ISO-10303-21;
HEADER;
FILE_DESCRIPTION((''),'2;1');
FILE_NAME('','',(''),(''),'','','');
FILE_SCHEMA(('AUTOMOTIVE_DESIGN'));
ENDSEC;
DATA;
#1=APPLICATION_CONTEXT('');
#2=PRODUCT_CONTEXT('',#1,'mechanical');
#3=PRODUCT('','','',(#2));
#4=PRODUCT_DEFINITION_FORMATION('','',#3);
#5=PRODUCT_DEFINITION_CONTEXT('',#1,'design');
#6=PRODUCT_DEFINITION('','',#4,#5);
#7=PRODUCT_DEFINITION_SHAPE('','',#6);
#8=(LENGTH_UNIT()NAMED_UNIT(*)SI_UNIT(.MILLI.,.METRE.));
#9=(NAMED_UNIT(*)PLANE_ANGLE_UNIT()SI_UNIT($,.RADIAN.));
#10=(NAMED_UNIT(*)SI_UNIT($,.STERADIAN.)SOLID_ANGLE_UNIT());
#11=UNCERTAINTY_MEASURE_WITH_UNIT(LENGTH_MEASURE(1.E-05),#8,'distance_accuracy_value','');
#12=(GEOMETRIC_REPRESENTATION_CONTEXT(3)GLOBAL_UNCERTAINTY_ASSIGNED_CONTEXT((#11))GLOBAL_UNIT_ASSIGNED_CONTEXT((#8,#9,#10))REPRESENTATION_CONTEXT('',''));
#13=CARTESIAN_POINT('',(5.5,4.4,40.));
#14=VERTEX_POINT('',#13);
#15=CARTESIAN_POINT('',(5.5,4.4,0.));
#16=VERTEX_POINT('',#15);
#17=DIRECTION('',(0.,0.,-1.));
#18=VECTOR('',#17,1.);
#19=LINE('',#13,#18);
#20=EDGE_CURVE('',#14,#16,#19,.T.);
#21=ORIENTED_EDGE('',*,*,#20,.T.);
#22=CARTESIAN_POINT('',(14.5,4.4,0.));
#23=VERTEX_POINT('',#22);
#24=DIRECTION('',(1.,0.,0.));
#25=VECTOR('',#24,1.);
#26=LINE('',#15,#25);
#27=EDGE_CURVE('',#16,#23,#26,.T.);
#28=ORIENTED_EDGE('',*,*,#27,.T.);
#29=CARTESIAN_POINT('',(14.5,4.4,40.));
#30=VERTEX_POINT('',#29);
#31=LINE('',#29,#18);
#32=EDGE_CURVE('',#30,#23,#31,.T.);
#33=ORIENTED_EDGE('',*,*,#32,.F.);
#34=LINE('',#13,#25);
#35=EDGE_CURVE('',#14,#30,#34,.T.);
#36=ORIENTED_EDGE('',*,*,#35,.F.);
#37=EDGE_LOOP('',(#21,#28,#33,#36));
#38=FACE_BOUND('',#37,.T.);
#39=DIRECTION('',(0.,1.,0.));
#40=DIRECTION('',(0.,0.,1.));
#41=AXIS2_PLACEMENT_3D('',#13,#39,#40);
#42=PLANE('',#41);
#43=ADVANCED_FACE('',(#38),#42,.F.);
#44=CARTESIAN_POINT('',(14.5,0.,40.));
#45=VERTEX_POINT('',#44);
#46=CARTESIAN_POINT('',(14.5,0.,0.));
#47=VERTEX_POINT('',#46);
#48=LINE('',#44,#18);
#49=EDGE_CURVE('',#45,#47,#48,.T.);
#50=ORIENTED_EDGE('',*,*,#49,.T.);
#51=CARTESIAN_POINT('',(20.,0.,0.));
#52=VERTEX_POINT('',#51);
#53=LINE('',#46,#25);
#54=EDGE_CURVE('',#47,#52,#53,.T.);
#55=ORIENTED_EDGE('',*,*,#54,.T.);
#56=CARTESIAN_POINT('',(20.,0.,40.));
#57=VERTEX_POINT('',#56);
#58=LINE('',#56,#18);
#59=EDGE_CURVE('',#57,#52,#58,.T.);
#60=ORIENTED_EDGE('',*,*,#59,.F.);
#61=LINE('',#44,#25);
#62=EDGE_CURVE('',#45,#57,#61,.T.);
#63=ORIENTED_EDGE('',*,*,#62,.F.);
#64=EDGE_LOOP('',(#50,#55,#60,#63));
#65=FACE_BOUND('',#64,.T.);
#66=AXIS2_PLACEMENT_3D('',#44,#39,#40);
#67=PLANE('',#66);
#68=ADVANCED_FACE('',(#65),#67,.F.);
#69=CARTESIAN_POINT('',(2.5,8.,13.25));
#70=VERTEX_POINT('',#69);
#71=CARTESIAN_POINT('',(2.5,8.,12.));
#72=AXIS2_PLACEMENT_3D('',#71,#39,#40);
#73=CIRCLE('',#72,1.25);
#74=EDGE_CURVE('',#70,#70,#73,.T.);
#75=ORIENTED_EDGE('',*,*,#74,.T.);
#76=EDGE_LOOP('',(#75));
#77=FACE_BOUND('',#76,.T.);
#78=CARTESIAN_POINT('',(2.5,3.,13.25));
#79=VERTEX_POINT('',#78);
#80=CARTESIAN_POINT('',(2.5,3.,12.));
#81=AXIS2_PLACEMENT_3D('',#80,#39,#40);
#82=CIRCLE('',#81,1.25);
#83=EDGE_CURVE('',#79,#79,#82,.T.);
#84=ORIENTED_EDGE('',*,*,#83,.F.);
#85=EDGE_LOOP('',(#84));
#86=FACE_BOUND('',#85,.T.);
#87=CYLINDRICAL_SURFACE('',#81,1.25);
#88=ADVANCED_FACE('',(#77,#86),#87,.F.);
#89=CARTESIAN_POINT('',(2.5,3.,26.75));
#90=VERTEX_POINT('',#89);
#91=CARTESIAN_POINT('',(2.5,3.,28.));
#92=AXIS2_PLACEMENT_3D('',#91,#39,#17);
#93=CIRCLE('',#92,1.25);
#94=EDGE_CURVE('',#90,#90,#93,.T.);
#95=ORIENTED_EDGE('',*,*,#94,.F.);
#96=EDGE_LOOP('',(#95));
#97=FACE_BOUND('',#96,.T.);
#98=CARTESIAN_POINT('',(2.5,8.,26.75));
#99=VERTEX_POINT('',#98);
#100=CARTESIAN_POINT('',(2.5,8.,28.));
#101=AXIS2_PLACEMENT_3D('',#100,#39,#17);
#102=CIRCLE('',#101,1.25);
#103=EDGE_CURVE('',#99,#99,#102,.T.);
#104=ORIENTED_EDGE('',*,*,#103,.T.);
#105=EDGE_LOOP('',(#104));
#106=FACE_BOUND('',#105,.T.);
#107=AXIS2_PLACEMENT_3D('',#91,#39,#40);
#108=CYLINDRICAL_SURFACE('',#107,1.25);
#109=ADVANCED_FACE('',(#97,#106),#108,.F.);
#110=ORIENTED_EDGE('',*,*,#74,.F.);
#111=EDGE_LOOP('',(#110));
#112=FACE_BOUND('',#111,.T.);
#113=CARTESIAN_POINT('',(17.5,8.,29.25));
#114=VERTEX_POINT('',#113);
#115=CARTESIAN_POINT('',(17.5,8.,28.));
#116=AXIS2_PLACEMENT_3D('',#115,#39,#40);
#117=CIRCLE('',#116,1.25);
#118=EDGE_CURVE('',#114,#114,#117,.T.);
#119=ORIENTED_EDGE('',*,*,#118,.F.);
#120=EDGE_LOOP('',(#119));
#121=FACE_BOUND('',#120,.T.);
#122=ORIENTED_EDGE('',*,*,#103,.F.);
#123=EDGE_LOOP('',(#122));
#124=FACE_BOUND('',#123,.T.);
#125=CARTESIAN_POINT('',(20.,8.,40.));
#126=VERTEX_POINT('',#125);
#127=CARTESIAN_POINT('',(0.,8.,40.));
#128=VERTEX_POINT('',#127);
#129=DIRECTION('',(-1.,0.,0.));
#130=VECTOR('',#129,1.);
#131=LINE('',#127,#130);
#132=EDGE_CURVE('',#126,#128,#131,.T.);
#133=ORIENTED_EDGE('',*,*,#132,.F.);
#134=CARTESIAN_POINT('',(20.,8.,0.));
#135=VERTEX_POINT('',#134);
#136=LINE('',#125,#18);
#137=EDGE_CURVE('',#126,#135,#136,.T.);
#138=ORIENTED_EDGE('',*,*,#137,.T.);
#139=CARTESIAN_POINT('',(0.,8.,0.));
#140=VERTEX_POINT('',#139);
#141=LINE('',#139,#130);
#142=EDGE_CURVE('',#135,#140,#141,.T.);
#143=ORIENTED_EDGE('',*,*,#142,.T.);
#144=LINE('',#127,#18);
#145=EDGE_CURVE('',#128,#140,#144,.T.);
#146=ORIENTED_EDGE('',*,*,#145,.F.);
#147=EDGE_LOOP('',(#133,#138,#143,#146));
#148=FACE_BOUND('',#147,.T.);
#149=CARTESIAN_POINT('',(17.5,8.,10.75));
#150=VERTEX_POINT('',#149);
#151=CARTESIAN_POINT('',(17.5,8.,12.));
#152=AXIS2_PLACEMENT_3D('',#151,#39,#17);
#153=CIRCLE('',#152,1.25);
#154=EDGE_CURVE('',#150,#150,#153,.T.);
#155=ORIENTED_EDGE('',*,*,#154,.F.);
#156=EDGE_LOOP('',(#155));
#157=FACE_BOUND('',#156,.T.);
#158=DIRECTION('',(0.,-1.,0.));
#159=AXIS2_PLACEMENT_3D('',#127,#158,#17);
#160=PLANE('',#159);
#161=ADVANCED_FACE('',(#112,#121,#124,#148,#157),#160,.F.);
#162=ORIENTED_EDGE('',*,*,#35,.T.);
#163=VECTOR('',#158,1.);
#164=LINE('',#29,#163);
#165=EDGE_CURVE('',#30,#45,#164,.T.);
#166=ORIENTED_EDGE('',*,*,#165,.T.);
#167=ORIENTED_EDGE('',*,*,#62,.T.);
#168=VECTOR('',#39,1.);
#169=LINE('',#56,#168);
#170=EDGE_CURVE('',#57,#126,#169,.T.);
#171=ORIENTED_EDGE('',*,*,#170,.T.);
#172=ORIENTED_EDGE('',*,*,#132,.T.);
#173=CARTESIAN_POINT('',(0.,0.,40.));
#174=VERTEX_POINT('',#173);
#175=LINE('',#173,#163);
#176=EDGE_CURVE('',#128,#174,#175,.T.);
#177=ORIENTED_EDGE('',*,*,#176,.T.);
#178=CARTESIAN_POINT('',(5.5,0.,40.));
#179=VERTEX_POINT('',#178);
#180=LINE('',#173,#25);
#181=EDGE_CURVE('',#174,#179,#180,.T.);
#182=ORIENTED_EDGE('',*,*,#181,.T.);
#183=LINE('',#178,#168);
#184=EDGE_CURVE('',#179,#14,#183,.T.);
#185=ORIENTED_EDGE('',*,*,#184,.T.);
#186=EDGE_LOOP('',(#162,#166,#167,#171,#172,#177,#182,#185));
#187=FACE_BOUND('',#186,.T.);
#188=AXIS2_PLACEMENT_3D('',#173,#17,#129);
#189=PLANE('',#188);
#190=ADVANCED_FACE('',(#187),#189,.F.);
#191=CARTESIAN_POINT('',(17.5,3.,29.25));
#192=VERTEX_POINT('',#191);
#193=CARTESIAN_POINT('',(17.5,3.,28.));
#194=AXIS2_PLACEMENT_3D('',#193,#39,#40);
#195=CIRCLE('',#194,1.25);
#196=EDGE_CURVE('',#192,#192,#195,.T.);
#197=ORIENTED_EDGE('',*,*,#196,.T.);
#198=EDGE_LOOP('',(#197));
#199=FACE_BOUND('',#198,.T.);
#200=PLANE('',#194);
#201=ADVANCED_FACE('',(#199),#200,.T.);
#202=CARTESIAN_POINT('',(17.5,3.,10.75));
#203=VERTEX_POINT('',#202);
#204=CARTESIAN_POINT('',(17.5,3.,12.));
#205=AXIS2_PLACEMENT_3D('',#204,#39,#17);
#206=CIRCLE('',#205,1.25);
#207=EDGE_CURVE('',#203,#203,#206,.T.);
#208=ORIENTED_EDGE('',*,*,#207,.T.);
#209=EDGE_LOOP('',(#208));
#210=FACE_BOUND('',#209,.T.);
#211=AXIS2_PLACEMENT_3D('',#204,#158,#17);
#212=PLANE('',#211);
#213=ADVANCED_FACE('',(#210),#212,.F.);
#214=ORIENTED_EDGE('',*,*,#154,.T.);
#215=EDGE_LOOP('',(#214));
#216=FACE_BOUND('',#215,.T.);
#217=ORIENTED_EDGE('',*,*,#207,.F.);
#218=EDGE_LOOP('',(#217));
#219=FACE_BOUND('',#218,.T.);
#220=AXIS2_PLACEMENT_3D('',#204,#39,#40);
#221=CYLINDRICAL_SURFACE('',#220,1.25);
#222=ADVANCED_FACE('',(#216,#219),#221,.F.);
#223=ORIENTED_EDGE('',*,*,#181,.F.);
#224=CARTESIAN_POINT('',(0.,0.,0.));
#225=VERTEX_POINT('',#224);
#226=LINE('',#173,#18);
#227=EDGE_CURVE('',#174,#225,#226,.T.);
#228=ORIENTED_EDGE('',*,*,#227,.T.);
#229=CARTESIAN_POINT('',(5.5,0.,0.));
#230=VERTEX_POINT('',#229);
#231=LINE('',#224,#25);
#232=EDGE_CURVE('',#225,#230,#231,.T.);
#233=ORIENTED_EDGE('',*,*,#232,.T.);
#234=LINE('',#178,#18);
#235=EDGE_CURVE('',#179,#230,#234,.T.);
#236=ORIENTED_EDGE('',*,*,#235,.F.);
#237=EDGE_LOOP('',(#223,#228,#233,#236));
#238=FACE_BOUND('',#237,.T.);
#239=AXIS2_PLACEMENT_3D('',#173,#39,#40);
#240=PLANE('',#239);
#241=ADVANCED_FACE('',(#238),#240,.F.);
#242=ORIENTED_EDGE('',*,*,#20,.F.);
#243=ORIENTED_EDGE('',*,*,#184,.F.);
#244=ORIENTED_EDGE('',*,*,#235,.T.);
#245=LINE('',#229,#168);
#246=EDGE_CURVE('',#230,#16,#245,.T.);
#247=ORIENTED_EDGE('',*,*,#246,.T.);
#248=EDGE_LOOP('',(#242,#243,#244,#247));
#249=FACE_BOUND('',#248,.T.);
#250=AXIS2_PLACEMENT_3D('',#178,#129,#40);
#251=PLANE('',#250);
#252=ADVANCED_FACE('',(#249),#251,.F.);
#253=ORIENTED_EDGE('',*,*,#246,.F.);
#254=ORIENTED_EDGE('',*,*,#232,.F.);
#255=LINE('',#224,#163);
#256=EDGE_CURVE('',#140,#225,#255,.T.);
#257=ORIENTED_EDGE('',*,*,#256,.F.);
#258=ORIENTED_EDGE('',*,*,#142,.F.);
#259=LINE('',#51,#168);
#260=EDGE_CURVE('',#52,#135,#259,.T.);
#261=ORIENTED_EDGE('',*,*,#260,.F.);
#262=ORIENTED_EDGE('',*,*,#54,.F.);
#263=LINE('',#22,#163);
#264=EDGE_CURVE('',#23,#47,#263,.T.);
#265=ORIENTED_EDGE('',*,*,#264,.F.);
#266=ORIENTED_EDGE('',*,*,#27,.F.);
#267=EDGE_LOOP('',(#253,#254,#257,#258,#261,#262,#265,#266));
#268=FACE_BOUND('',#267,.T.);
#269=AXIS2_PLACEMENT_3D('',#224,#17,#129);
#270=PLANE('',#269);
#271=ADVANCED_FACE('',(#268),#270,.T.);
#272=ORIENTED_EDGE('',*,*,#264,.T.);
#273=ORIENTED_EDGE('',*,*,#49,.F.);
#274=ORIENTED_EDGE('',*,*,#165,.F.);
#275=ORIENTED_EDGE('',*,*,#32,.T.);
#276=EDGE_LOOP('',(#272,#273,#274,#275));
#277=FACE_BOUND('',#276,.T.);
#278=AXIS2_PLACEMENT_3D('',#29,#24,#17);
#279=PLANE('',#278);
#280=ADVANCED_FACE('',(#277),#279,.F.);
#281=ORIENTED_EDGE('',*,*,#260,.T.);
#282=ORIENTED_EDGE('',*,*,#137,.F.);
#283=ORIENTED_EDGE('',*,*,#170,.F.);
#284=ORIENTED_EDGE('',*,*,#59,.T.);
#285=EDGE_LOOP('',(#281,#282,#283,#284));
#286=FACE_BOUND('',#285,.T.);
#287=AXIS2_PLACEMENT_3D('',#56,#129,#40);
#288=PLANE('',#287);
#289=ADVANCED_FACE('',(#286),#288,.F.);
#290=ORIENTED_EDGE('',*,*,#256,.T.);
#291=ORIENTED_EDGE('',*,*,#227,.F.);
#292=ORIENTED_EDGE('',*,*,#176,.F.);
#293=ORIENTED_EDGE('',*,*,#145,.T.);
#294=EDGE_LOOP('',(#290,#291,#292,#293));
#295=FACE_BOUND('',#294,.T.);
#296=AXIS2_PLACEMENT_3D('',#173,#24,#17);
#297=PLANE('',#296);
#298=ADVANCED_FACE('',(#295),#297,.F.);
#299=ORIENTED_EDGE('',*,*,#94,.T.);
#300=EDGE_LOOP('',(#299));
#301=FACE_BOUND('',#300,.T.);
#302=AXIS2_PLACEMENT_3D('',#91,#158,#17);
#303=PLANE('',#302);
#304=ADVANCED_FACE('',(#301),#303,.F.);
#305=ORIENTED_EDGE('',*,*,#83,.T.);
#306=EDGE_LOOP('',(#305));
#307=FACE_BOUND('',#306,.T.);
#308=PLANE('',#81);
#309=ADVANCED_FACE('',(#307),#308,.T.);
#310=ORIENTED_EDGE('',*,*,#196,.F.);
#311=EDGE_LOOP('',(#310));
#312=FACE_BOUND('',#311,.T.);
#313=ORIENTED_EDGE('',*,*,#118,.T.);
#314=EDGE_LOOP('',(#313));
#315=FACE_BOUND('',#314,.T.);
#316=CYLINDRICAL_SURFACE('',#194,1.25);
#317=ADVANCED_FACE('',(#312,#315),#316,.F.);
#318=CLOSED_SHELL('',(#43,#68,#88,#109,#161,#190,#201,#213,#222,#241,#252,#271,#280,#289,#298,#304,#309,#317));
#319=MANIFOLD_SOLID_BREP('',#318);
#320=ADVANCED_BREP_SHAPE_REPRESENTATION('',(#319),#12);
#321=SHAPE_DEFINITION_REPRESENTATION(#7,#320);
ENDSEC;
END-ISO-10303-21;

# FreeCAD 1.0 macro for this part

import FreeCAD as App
import Part
import Sketcher
Q = App.Units.Quantity

doc = App.newDocument("Part")
body = doc.addObject("PartDesign::Body", "Body")

sketch1 = body.newObject("Sketcher::SketchObject", "Sketch")
sketch1.AttachmentSupport = (doc.getObject("XY_Plane"), [""])
sketch1.MapMode = "FlatFace"
sketch1.addGeometry(Part.LineSegment(App.Vector(0, 0, 0), App.Vector(5.5, 0, 0)), False)
sketch1.addGeometry(Part.LineSegment(App.Vector(5.5, 0, 0), App.Vector(5.5, 4.4, 0)), False)
sketch1.addGeometry(Part.LineSegment(App.Vector(5.5, 4.4, 0), App.Vector(14.5, 4.4, 0)), False)
sketch1.addGeometry(Part.LineSegment(App.Vector(14.5, 4.4, 0), App.Vector(14.5, 0, 0)), False)
sketch1.addGeometry(Part.LineSegment(App.Vector(14.5, 0, 0), App.Vector(20, 0, 0)), False)
sketch1.addGeometry(Part.LineSegment(App.Vector(20, 0, 0), App.Vector(20, 8, 0)), False)
sketch1.addGeometry(Part.LineSegment(App.Vector(20, 8, 0), App.Vector(0, 8, 0)), False)
sketch1.addGeometry(Part.LineSegment(App.Vector(0, 8, 0), App.Vector(0, 0, 0)), False)
sketch1.addConstraint(Sketcher.Constraint("Coincident", 0, 2, 1, 1))
sketch1.addConstraint(Sketcher.Constraint("Coincident", 1, 2, 2, 1))
sketch1.addConstraint(Sketcher.Constraint("Coincident", 2, 2, 3, 1))
sketch1.addConstraint(Sketcher.Constraint("Coincident", 3, 2, 4, 1))
sketch1.addConstraint(Sketcher.Constraint("Coincident", 4, 2, 5, 1))
sketch1.addConstraint(Sketcher.Constraint("Coincident", 5, 2, 6, 1))
sketch1.addConstraint(Sketcher.Constraint("Coincident", 6, 2, 7, 1))
sketch1.addConstraint(Sketcher.Constraint("Coincident", 7, 2, 0, 1))
sketch1.addConstraint(Sketcher.Constraint("Horizontal", 0))
sketch1.addConstraint(Sketcher.Constraint("Vertical", 1))
sketch1.addConstraint(Sketcher.Constraint("Horizontal", 2))
sketch1.addConstraint(Sketcher.Constraint("Vertical", 3))
sketch1.addConstraint(Sketcher.Constraint("Horizontal", 4))
sketch1.addConstraint(Sketcher.Constraint("Vertical", 5))
sketch1.addConstraint(Sketcher.Constraint("Horizontal", 6))
sketch1.addConstraint(Sketcher.Constraint("Vertical", 7))
sketch1.addConstraint(Sketcher.Constraint("Coincident", 7, 2, -1, 1))
sketch1.addConstraint(Sketcher.Constraint("PointOnObject", 3, 2, -1))
sketch1.addConstraint(Sketcher.Constraint("Equal", 0, 4))
sketch1.addConstraint(Sketcher.Constraint("DistanceX", 2, 1, 2, 2, Q("9 mm")))
sketch1.addConstraint(Sketcher.Constraint("DistanceX", 6, 2, 6, 1, Q("20 mm")))
sketch1.addConstraint(Sketcher.Constraint("DistanceY", 5, 1, 5, 2, Q("8 mm")))
sketch1.addConstraint(Sketcher.Constraint("DistanceY", 1, 1, 1, 2, Q("4.4 mm")))
pad1 = body.newObject("PartDesign::Pad", "Pad")
pad1.Profile = sketch1
pad1.Length = 40

sketch2 = body.newObject("Sketcher::SketchObject", "Sketch001")
sketch2.AttachmentSupport = (doc.getObject("XZ_Plane"), [""])
sketch2.MapMode = "FlatFace"
sketch2.AttachmentOffset = App.Placement(App.Vector(0, 0, -8), App.Rotation())
sketch2.addGeometry(Part.Circle(App.Vector(2.5, 12, 0), App.Vector(0, 0, 1), 1.25), False)
sketch2.addGeometry(Part.Circle(App.Vector(17.5, 12, 0), App.Vector(0, 0, 1), 1.25), False)
sketch2.addGeometry(Part.Circle(App.Vector(17.5, 28, 0), App.Vector(0, 0, 1), 1.25), False)
sketch2.addGeometry(Part.Circle(App.Vector(2.5, 28, 0), App.Vector(0, 0, 1), 1.25), False)
sketch2.addConstraint(Sketcher.Constraint("Equal", 0, 1))
sketch2.addConstraint(Sketcher.Constraint("Equal", 1, 2))
sketch2.addConstraint(Sketcher.Constraint("Equal", 2, 3))
sketch2.addConstraint(Sketcher.Constraint("Horizontal", 0, 3, 1, 3))
sketch2.addConstraint(Sketcher.Constraint("Horizontal", 2, 3, 3, 3))
sketch2.addConstraint(Sketcher.Constraint("Vertical", 1, 3, 2, 3))
sketch2.addConstraint(Sketcher.Constraint("Vertical", 0, 3, 3, 3))
sketch2.addConstraint(Sketcher.Constraint("Diameter", 0, Q("2.5 mm")))
sketch2.addConstraint(Sketcher.Constraint("DistanceY", -1, 1, 0, 3, Q("12 mm")))
sketch2.addConstraint(Sketcher.Constraint("DistanceY", -1, 1, 2, 3, Q("28 mm")))
sketch2.addConstraint(Sketcher.Constraint("DistanceX", 0, 3, 1, 3, Q("15 mm")))
sketch2.addConstraint(Sketcher.Constraint("DistanceX", -1, 1, 0, 3, Q("2.5 mm")))
pocket1 = body.newObject("PartDesign::Pocket", "Pocket")
pocket1.Profile = sketch2
pocket1.Length = 5
pocket1.Reversed = True

doc.recompute()
